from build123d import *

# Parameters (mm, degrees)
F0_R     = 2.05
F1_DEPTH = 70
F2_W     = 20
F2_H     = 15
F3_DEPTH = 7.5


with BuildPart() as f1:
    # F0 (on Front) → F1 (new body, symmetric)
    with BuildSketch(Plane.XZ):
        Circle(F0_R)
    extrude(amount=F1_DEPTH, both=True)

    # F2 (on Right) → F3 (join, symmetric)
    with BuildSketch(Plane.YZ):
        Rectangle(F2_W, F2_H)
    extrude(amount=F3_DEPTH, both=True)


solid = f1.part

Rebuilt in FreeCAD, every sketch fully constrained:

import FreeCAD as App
import Part
import Sketcher


def add_polygon(sketch, points):
    """Adds a closed chain of lines whose ends are joined by coincident constraints."""
    first, n = sketch.GeometryCount, len(points)
    for a, b in zip(points, points[1:] + points[:1]):
        sketch.addGeometry(Part.LineSegment(App.Vector(*a, 0), App.Vector(*b, 0)), False)
    for i in range(n):
        sketch.addConstraint(Sketcher.Constraint("Coincident", first + i, 2, first + (i + 1) % n, 1))

doc = App.newDocument("Part")
body = doc.addObject("PartDesign::Body", "Body")

# Sketch on XZ plane
sketch1 = body.newObject("Sketcher::SketchObject", "Sketch")
sketch1.AttachmentSupport = (doc.getObject("XZ_Plane"), [""])
sketch1.MapMode = "FlatFace"
sketch1.addGeometry(Part.Circle(App.Vector(0, 0, 0), App.Vector(0, 0, 1), 2), False)
sketch1.addConstraint(Sketcher.Constraint("Coincident", 0, 3, -1, 1))
sketch1.addConstraint(Sketcher.Constraint("Diameter", 0, 4.1))
pad1 = body.newObject("PartDesign::Pad", "Pad")
pad1.Profile = sketch1
pad1.Length = 140
pad1.Midplane = True

# Sketch on YZ plane
sketch2 = body.newObject("Sketcher::SketchObject", "Sketch001")
sketch2.AttachmentSupport = (doc.getObject("YZ_Plane"), [""])
sketch2.MapMode = "FlatFace"
add_polygon(sketch2, [(-10, 8), (-10, -8), (10, -8), (10, 8)])  # lines 0-3
sketch2.addConstraint(Sketcher.Constraint("Vertical", 0))
sketch2.addConstraint(Sketcher.Constraint("Horizontal", 1))
sketch2.addConstraint(Sketcher.Constraint("Vertical", 2))
sketch2.addConstraint(Sketcher.Constraint("Horizontal", 3))
sketch2.addConstraint(Sketcher.Constraint("Symmetric", 0, 2, 2, 2, -1, 1))
sketch2.addConstraint(Sketcher.Constraint("DistanceX", 1, 1, 1, 2, 20.0))
sketch2.addConstraint(Sketcher.Constraint("DistanceY", 0, 2, 0, 1, 15.0))
pad2 = body.newObject("PartDesign::Pad", "Pad001")
pad2.Profile = sketch2
pad2.Length = 15
pad2.Midplane = True

doc.recompute()
